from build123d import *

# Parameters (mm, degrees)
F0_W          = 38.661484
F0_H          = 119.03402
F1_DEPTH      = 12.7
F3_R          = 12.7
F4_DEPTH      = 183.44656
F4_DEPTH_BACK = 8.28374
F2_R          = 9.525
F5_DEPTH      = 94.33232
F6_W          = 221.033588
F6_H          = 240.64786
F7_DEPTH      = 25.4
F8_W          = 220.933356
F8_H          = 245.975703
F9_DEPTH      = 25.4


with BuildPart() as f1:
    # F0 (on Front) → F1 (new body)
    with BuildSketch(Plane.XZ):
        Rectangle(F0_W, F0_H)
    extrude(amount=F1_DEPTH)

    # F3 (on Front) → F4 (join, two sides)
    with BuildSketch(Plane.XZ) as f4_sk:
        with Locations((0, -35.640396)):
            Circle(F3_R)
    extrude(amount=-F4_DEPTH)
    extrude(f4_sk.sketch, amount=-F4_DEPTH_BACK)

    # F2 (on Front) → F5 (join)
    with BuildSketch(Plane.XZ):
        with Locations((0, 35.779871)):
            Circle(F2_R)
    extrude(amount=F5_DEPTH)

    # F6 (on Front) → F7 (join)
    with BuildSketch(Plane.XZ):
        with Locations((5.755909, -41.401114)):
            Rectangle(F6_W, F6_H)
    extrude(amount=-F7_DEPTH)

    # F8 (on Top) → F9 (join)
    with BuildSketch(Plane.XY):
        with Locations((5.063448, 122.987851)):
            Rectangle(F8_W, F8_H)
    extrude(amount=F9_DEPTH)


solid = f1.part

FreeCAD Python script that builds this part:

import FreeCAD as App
import Part
import Sketcher

V = App.Vector
Q = App.Units.Quantity

doc = App.newDocument("Part")
params = doc.addObject("Spreadsheet::Sheet", "Params")
for row, (alias, value) in enumerate([
    ("pad1_length", "0.5 in"),
    ("sketch2_diameter", "1 in"),
    ("pad2_length", "183.44656 mm"),
    ("pad3_length", "8.28374 mm"),
    ("sketch3_diameter", "0.75 in"),
    ("pad4_length", "94.33232 mm"),
    ("pad5_length", "1 in"),
    ("pad6_length", "1 in"),
], start=1):
    params.set(f"A{row}", alias)
    params.set(f"B{row}", "=" + value)
    params.setAlias(f"B{row}", alias)

body = doc.addObject("PartDesign::Body", "Body")

sketch1 = body.newObject("Sketcher::SketchObject", "Sketch")
sketch1.AttachmentSupport = (doc.getObject("XZ_Plane"), [""])
sketch1.MapMode = "FlatFace"
sketch1.addGeometry([
    Part.LineSegment(V(-19, 60, 0), V(-19, -60, 0)),
    Part.LineSegment(V(-19, -60, 0), V(19, -60, 0)),
    Part.LineSegment(V(19, -60, 0), V(19, 60, 0)),
    Part.LineSegment(V(19, 60, 0), V(-19, 60, 0)),
], False)
sketch1.addConstraint([
    Sketcher.Constraint("Coincident", 0, 2, 1, 1),
    Sketcher.Constraint("Coincident", 1, 2, 2, 1),
    Sketcher.Constraint("Coincident", 2, 2, 3, 1),
    Sketcher.Constraint("Coincident", 3, 2, 0, 1),
    Sketcher.Constraint("Vertical", 0),
    Sketcher.Constraint("Horizontal", 1),
    Sketcher.Constraint("Vertical", 2),
    Sketcher.Constraint("Horizontal", 3),
    Sketcher.Constraint("Symmetric", 0, 2, 2, 2, -1, 1),
    Sketcher.Constraint("DistanceY", 0, 2, 0, 1, Q("119.03402 mm")),
    Sketcher.Constraint("DistanceX", 1, 1, 1, 2, Q("38.661484 mm")),
])
pad1 = body.newObject("PartDesign::Pad", "Pad")
pad1.Profile = sketch1
pad1.setExpression("Length", "Params.pad1_length")

sketch2 = body.newObject("Sketcher::SketchObject", "Sketch001")
sketch2.AttachmentSupport = (doc.getObject("XZ_Plane"), [""])
sketch2.MapMode = "FlatFace"
sketch2.addGeometry(Part.Circle(V(0, -36, 0), V(0, 0, 1), 13), False)
sketch2.addConstraint([
    Sketcher.Constraint("PointOnObject", 0, 3, -2),
    Sketcher.Constraint("Diameter", 0, Q("1 in")),
    Sketcher.Constraint("DistanceY", 0, 3, -1, 1, Q("35.640396 mm")),
])
sketch2.setExpression("Constraints[1]", "Params.sketch2_diameter")
pad2 = body.newObject("PartDesign::Pad", "Pad001")
pad2.Profile = sketch2
pad2.setExpression("Length", "Params.pad2_length")
pad2.Reversed = True
pad3 = body.newObject("PartDesign::Pad", "Pad002")
pad3.Profile = sketch2
pad3.setExpression("Length", "Params.pad3_length")
pad3.Reversed = True

sketch3 = body.newObject("Sketcher::SketchObject", "Sketch002")
sketch3.AttachmentSupport = (doc.getObject("XZ_Plane"), [""])
sketch3.MapMode = "FlatFace"
sketch3.addGeometry(Part.Circle(V(0, 36, 0), V(0, 0, 1), 10), False)
sketch3.addConstraint([
    Sketcher.Constraint("PointOnObject", 0, 3, -2),
    Sketcher.Constraint("Diameter", 0, Q("0.75 in")),
    Sketcher.Constraint("DistanceY", -1, 1, 0, 3, Q("35.779871 mm")),
])
sketch3.setExpression("Constraints[1]", "Params.sketch3_diameter")
pad4 = body.newObject("PartDesign::Pad", "Pad003")
pad4.Profile = sketch3
pad4.setExpression("Length", "Params.pad4_length")

sketch4 = body.newObject("Sketcher::SketchObject", "Sketch003")
sketch4.AttachmentSupport = (doc.getObject("XZ_Plane"), [""])
sketch4.MapMode = "FlatFace"
sketch4.addGeometry([
    Part.LineSegment(V(-105, 79, 0), V(-105, -162, 0)),
    Part.LineSegment(V(-105, -162, 0), V(116, -162, 0)),
    Part.LineSegment(V(116, -162, 0), V(116, 79, 0)),
    Part.LineSegment(V(116, 79, 0), V(-105, 79, 0)),
], False)
sketch4.addConstraint([
    Sketcher.Constraint("Coincident", 0, 2, 1, 1),
    Sketcher.Constraint("Coincident", 1, 2, 2, 1),
    Sketcher.Constraint("Coincident", 2, 2, 3, 1),
    Sketcher.Constraint("Coincident", 3, 2, 0, 1),
    Sketcher.Constraint("Vertical", 0),
    Sketcher.Constraint("Horizontal", 1),
    Sketcher.Constraint("Vertical", 2),
    Sketcher.Constraint("Horizontal", 3),
    Sketcher.Constraint("DistanceX", 1, 1, 1, 2, Q("221.033588 mm")),
    Sketcher.Constraint("DistanceY", 0, 2, 0, 1, Q("240.64786 mm")),
    Sketcher.Constraint("DistanceX", 0, 2, -1, 1, Q("104.760885 mm")),
    Sketcher.Constraint("DistanceY", 0, 2, -1, 1, Q("161.725044 mm")),
])
pad5 = body.newObject("PartDesign::Pad", "Pad004")
pad5.Profile = sketch4
pad5.setExpression("Length", "Params.pad5_length")
pad5.Reversed = True

sketch5 = body.newObject("Sketcher::SketchObject", "Sketch004")
sketch5.AttachmentSupport = (doc.getObject("XY_Plane"), [""])
sketch5.MapMode = "FlatFace"
sketch5.addGeometry([
    Part.LineSegment(V(-105, 246, 0), V(-105, 0, 0)),
    Part.LineSegment(V(-105, 0, 0), V(116, 0, 0)),
    Part.LineSegment(V(116, 0, 0), V(116, 246, 0)),
    Part.LineSegment(V(116, 246, 0), V(-105, 246, 0)),
], False)
sketch5.addConstraint([
    Sketcher.Constraint("Coincident", 0, 2, 1, 1),
    Sketcher.Constraint("Coincident", 1, 2, 2, 1),
    Sketcher.Constraint("Coincident", 2, 2, 3, 1),
    Sketcher.Constraint("Coincident", 3, 2, 0, 1),
    Sketcher.Constraint("Vertical", 0),
    Sketcher.Constraint("Horizontal", 1),
    Sketcher.Constraint("Vertical", 2),
    Sketcher.Constraint("Horizontal", 3),
    Sketcher.Constraint("PointOnObject", 0, 2, -1),
    Sketcher.Constraint("DistanceX", 1, 1, 1, 2, Q("220.933356 mm")),
    Sketcher.Constraint("DistanceY", 0, 2, 0, 1, Q("245.975703 mm")),
    Sketcher.Constraint("DistanceX", 0, 2, -1, 1, Q("105.40323 mm")),
])
pad6 = body.newObject("PartDesign::Pad", "Pad005")
pad6.Profile = sketch5
pad6.setExpression("Length", "Params.pad6_length")

doc.recompute()
